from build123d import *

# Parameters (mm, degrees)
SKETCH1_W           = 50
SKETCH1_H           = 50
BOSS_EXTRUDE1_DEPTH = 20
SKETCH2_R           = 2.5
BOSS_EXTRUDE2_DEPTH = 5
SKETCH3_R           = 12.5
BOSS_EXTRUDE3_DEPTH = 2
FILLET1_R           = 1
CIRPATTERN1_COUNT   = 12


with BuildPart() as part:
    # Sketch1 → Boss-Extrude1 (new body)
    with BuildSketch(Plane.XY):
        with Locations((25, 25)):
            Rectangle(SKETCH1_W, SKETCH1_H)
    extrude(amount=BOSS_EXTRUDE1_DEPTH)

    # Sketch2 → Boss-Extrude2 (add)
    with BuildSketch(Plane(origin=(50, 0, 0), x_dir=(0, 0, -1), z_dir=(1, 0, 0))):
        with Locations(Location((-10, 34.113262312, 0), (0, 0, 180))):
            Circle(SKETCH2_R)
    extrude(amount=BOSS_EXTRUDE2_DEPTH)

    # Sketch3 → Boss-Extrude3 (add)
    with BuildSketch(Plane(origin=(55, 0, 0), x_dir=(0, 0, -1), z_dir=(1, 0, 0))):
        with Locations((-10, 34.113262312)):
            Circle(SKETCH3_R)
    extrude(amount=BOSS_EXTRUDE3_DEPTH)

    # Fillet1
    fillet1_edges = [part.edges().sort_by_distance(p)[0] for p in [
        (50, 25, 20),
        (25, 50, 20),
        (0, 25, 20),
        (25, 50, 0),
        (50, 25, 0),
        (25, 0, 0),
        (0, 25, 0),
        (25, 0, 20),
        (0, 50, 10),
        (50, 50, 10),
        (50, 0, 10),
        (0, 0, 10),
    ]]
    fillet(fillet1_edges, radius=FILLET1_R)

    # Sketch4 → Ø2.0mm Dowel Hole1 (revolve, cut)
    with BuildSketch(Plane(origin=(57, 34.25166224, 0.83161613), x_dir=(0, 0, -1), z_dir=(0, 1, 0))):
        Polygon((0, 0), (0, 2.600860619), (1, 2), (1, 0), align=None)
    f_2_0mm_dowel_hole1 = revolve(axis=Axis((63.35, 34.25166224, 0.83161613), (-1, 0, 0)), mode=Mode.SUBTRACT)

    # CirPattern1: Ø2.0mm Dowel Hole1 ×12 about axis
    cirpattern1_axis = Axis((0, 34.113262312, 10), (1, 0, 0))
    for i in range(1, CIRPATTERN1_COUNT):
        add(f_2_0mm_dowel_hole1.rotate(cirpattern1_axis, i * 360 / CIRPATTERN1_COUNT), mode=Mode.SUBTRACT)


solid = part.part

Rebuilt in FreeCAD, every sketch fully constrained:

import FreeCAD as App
import Part
import Sketcher

V = App.Vector
Q = App.Units.Quantity


def edges_at(feature, points):
    """Names of the edges that pass closest to the given points."""
    edges = feature.Shape.Edges
    near = lambda p: min(range(len(edges)), key=lambda i: edges[i].distToShape(Part.Vertex(*p))[0])
    return sorted({f"Edge{near(p) + 1}" for p in points})

doc = App.newDocument("Part")
body = doc.addObject("PartDesign::Body", "Body")

sketch1 = doc.addObject("Sketcher::SketchObject", "Sketch")
body.addObject(sketch1)
sketch1.AttachmentSupport = (doc.XY_Plane, [""])
sketch1.MapMode = "FlatFace"
sketch1.addGeometry([
    Part.LineSegment(V(0, 50, 0), V(0, 0, 0)),
    Part.LineSegment(V(0, 0, 0), V(50, 0, 0)),
    Part.LineSegment(V(50, 0, 0), V(50, 50, 0)),
    Part.LineSegment(V(50, 50, 0), V(0, 50, 0)),
], False)
sketch1.addConstraint([
    Sketcher.Constraint("Coincident", 0, 2, 1, 1),
    Sketcher.Constraint("Coincident", 1, 2, 2, 1),
    Sketcher.Constraint("Coincident", 2, 2, 3, 1),
    Sketcher.Constraint("Coincident", 3, 2, 0, 1),
    Sketcher.Constraint("Vertical", 0),
    Sketcher.Constraint("Horizontal", 1),
    Sketcher.Constraint("Vertical", 2),
    Sketcher.Constraint("Horizontal", 3),
    Sketcher.Constraint("Coincident", 0, 2, -1, 1),
    Sketcher.Constraint("Equal", 3, 0),
    Sketcher.Constraint("DistanceX", 1, 1, 1, 2, 50.0),
])
pad1 = doc.addObject("PartDesign::Pad", "Pad")
body.addObject(pad1)
pad1.Profile = sketch1
pad1.Length = 20

sketch2 = doc.addObject("Sketcher::SketchObject", "Sketch001")
body.addObject(sketch2)
sketch2.AttachmentSupport = (doc.YZ_Plane, [""])
sketch2.MapMode = "FlatFace"
sketch2.AttachmentOffset = App.Placement(V(0, 0, 50), App.Rotation())
sketch2.addGeometry(Part.Circle(V(34.1, 10, 0), V(0, 0, 1), 2.5), False)
sketch2.addConstraint([
    Sketcher.Constraint("Diameter", 0, 5.0),
    Sketcher.Constraint("DistanceY", -1, 1, 0, 3, 10.0),
    Sketcher.Constraint("DistanceX", -1, 1, 0, 3, 34.113262),
])
pad2 = doc.addObject("PartDesign::Pad", "Pad001")
body.addObject(pad2)
pad2.Profile = sketch2
pad2.Length = 5

sketch3 = doc.addObject("Sketcher::SketchObject", "Sketch002")
body.addObject(sketch3)
sketch3.AttachmentSupport = (doc.YZ_Plane, [""])
sketch3.MapMode = "FlatFace"
sketch3.AttachmentOffset = App.Placement(V(0, 0, 55), App.Rotation())
sketch3.addGeometry(Part.Circle(V(34, 10, 0), V(0, 0, 1), 12), False)
sketch3.addConstraint([
    Sketcher.Constraint("Diameter", 0, 25.0),
    Sketcher.Constraint("DistanceY", -1, 1, 0, 3, 10.0),
    Sketcher.Constraint("DistanceX", -1, 1, 0, 3, 34.113262),
])
pad3 = doc.addObject("PartDesign::Pad", "Pad002")
body.addObject(pad3)
pad3.Profile = sketch3
pad3.Length = 2
doc.recompute()

fillet = doc.addObject("PartDesign::Fillet", "Fillet")
body.addObject(fillet)
fillet.Base = (pad3, edges_at(pad3, [
    (50, 25, 20),
    (25, 50, 20),
    (0, 25, 20),
    (25, 50, 0),
    (50, 25, 0),
    (25, 0, 0),
    (0, 25, 0),
    (25, 0, 20),
    (0, 50, 10),
    (50, 50, 10),
    (50, 0, 10),
    (0, 0, 10),
]))
fillet.Radius = 1

sketch4 = doc.addObject("Sketcher::SketchObject", "Sketch003")
body.addObject(sketch4)
sketch4.AttachmentSupport = (doc.XZ_Plane, [""])
sketch4.MapMode = "FlatFace"
sketch4.AttachmentOffset = App.Placement(V(0, 0, -34.251662), App.Rotation())
sketch4.addGeometry([
    Part.LineSegment(V(54.4, 0.8, 0), V(57, 0.8, 0)),
    Part.LineSegment(V(57, 0.8, 0), V(57, -0.2, 0)),
    Part.LineSegment(V(57, -0.2, 0), V(55, -0.2, 0)),
    Part.LineSegment(V(55, -0.2, 0), V(54.4, 0.8, 0)),
], False)
sketch4.addGeometry(Part.LineSegment(V(57, 0.8, 0), V(54.4, 0.8, 0)), True)
sketch4.addConstraint([
    Sketcher.Constraint("Coincident", 0, 2, 1, 1),
    Sketcher.Constraint("Coincident", 1, 2, 2, 1),
    Sketcher.Constraint("Coincident", 2, 2, 3, 1),
    Sketcher.Constraint("Coincident", 3, 2, 0, 1),
    Sketcher.Constraint("Horizontal", 0),
    Sketcher.Constraint("Vertical", 1),
    Sketcher.Constraint("Horizontal", 2),
    Sketcher.Constraint("Horizontal", 4),
    Sketcher.Constraint("Coincident", 4, 1, 0, 2),
    Sketcher.Constraint("Equal", 0, 4),
    Sketcher.Constraint("DistanceX", 2, 2, 2, 1, 2.0),
    Sketcher.Constraint("DistanceY", 1, 2, 1, 1, 1.0),
    Sketcher.Constraint("Angle", 3, Q("121 deg")),
    Sketcher.Constraint("DistanceX", -1, 1, 0, 2, 57.0),
    Sketcher.Constraint("DistanceY", -1, 1, 0, 2, 0.831616),
])
groove = doc.addObject("PartDesign::Groove", "Groove")
body.addObject(groove)
groove.Profile = sketch4
groove.ReferenceAxis = (sketch4, ["Axis0"])
groove.Angle = 360
doc.recompute()

datumline = doc.addObject("PartDesign::Line", "DatumLine")
body.addObject(datumline)
datumline.Placement = App.Placement(V(0, 34.113262, 10), App.Rotation(V(0, 0, 1), V(1, 0, 0)))
polarpattern = doc.addObject("PartDesign::PolarPattern", "PolarPattern")
body.addObject(polarpattern)
polarpattern.Originals = [groove]
polarpattern.Axis = (datumline, [""])
polarpattern.Angle = 360
polarpattern.Occurrences = 12
body.Tip = polarpattern

doc.recompute()
